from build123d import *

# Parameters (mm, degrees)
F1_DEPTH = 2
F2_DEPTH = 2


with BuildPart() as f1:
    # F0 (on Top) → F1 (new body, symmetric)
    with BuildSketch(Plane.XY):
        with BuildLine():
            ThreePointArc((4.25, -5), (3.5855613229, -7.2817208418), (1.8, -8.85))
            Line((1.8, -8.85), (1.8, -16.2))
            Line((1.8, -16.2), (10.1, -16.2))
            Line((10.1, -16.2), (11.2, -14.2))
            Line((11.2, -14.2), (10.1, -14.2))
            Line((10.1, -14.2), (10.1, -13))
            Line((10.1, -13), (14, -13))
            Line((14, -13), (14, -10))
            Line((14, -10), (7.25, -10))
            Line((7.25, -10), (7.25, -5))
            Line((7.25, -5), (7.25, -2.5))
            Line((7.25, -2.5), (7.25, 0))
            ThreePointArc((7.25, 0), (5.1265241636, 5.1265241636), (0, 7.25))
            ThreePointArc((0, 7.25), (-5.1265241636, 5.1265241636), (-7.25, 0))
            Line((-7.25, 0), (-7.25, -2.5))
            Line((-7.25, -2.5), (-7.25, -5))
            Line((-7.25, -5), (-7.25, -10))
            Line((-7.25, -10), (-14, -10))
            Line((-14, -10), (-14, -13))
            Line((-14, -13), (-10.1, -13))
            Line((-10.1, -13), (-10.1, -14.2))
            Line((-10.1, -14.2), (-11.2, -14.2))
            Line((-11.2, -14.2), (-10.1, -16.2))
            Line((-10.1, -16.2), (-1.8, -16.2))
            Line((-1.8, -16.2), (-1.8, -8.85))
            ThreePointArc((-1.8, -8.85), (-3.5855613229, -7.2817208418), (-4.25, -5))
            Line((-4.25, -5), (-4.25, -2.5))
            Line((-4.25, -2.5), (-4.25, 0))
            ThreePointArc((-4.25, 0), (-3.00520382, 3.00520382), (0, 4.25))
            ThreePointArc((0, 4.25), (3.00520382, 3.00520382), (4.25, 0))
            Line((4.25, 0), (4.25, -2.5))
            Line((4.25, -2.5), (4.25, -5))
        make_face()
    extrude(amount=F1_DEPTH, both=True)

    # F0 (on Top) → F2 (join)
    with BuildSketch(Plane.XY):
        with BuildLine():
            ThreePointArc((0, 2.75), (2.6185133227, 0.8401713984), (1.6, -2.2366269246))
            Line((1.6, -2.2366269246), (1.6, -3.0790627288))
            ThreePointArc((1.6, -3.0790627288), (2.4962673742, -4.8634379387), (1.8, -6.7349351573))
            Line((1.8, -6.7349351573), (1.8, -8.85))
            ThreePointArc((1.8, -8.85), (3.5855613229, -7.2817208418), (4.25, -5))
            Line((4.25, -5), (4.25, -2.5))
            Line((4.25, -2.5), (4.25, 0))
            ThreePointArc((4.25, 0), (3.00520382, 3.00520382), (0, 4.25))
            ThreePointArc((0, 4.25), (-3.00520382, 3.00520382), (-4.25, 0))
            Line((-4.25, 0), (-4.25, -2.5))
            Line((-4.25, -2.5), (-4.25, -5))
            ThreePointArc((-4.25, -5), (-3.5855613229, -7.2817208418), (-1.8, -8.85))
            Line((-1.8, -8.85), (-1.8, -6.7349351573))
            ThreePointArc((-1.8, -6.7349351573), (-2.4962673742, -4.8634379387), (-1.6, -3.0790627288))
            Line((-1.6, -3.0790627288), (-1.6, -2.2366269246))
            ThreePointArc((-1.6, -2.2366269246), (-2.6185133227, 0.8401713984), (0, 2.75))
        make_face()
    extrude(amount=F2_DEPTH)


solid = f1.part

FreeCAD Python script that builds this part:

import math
import FreeCAD as App
import Part
import Sketcher

V = App.Vector
Q = App.Units.Quantity

doc = App.newDocument("Part")
params = doc.addObject("Spreadsheet::Sheet", "Params")
for row, (alias, value) in enumerate([
    ("sketch1_height", "3 mm"),
    ("sketch1_height2", "10 mm"),
    ("sketch1_height3", "5 mm"),
    ("sketch1_radius", "4.25 mm"),
    ("sketch1_radius2", "7.25 mm"),
    ("pad1_length", "4 mm"),
    ("sketch2_radius", "2.5 mm"),
    ("sketch2_height", "5 mm"),
    ("sketch2_radius2", "2.75 mm"),
    ("sketch2_radius3", "4.25 mm"),
    ("pad2_length", "2 mm"),
], start=1):
    params.set(f"A{row}", alias)
    params.set(f"B{row}", "=" + value)
    params.setAlias(f"B{row}", alias)

body = doc.addObject("PartDesign::Body", "Body")

sketch1 = body.newObject("Sketcher::SketchObject", "Sketch")
sketch1.AttachmentSupport = (doc.getObject("XY_Plane"), [""])
sketch1.MapMode = "FlatFace"
sketch1.addGeometry(Part.ArcOfCircle(Part.Circle(V(0, -5, 0), V(0, 0, 1), 4.2), math.radians(-65), math.radians(0)), False)
sketch1.addGeometry(Part.LineSegment(V(1.8, -8.8, 0), V(1.8, -16.2, 0)), False)
sketch1.addGeometry(Part.LineSegment(V(1.8, -16.2, 0), V(10.1, -16.2, 0)), False)
sketch1.addGeometry(Part.LineSegment(V(10.1, -16.2, 0), V(11.2, -14.2, 0)), False)
sketch1.addGeometry(Part.LineSegment(V(11.2, -14.2, 0), V(10.1, -14.2, 0)), False)
sketch1.addGeometry(Part.LineSegment(V(10.1, -14.2, 0), V(10.1, -13, 0)), False)
sketch1.addGeometry(Part.LineSegment(V(10.1, -13, 0), V(14, -13, 0)), False)
sketch1.addGeometry(Part.LineSegment(V(14, -13, 0), V(14, -10, 0)), False)
sketch1.addGeometry(Part.LineSegment(V(14, -10, 0), V(7.2, -10, 0)), False)
sketch1.addGeometry(Part.LineSegment(V(7.2, -10, 0), V(7.2, 0, 0)), False)
sketch1.addGeometry(Part.ArcOfCircle(Part.Circle(V(0, 0, 0), V(0, 0, 1), 7.2), math.radians(0), math.radians(90)), False)
sketch1.addGeometry(Part.ArcOfCircle(Part.Circle(V(0, 0, 0), V(0, 0, 1), 7.2), math.radians(90), math.radians(180)), False)
sketch1.addGeometry(Part.LineSegment(V(-7.2, 0, 0), V(-7.2, -10, 0)), False)
sketch1.addGeometry(Part.LineSegment(V(-7.2, -10, 0), V(-14, -10, 0)), False)
sketch1.addGeometry(Part.LineSegment(V(-14, -10, 0), V(-14, -13, 0)), False)
sketch1.addGeometry(Part.LineSegment(V(-14, -13, 0), V(-10.1, -13, 0)), False)
sketch1.addGeometry(Part.LineSegment(V(-10.1, -13, 0), V(-10.1, -14.2, 0)), False)
sketch1.addGeometry(Part.LineSegment(V(-10.1, -14.2, 0), V(-11.2, -14.2, 0)), False)
sketch1.addGeometry(Part.LineSegment(V(-11.2, -14.2, 0), V(-10.1, -16.2, 0)), False)
sketch1.addGeometry(Part.LineSegment(V(-10.1, -16.2, 0), V(-1.8, -16.2, 0)), False)
sketch1.addGeometry(Part.LineSegment(V(-1.8, -16.2, 0), V(-1.8, -8.8, 0)), False)
sketch1.addGeometry(Part.ArcOfCircle(Part.Circle(V(0, -5, 0), V(0, 0, 1), 4.2), math.radians(180), math.radians(245)), False)
sketch1.addGeometry(Part.LineSegment(V(-4.2, -5, 0), V(-4.2, 0, 0)), False)
sketch1.addGeometry(Part.ArcOfCircle(Part.Circle(V(0, 0, 0), V(0, 0, 1), 4.2), math.radians(90), math.radians(180)), False)
sketch1.addGeometry(Part.ArcOfCircle(Part.Circle(V(0, 0, 0), V(0, 0, 1), 4.2), math.radians(0), math.radians(90)), False)
sketch1.addGeometry(Part.LineSegment(V(4.2, 0, 0), V(4.2, -5, 0)), False)
sketch1.addConstraint(Sketcher.Constraint("Coincident", 0, 1, 1, 1))
sketch1.addConstraint(Sketcher.Constraint("Coincident", 1, 2, 2, 1))
sketch1.addConstraint(Sketcher.Constraint("Coincident", 2, 2, 3, 1))
sketch1.addConstraint(Sketcher.Constraint("Coincident", 3, 2, 4, 1))
sketch1.addConstraint(Sketcher.Constraint("Coincident", 4, 2, 5, 1))
sketch1.addConstraint(Sketcher.Constraint("Coincident", 5, 2, 6, 1))
sketch1.addConstraint(Sketcher.Constraint("Coincident", 6, 2, 7, 1))
sketch1.addConstraint(Sketcher.Constraint("Coincident", 7, 2, 8, 1))
sketch1.addConstraint(Sketcher.Constraint("Coincident", 8, 2, 9, 1))
sketch1.addConstraint(Sketcher.Constraint("Tangent", 9, 2, 10, 1))
sketch1.addConstraint(Sketcher.Constraint("Tangent", 10, 2, 11, 1))
sketch1.addConstraint(Sketcher.Constraint("Tangent", 11, 2, 12, 1))
sketch1.addConstraint(Sketcher.Constraint("Coincident", 12, 2, 13, 1))
sketch1.addConstraint(Sketcher.Constraint("Coincident", 13, 2, 14, 1))
sketch1.addConstraint(Sketcher.Constraint("Coincident", 14, 2, 15, 1))
sketch1.addConstraint(Sketcher.Constraint("Coincident", 15, 2, 16, 1))
sketch1.addConstraint(Sketcher.Constraint("Coincident", 16, 2, 17, 1))
sketch1.addConstraint(Sketcher.Constraint("Coincident", 17, 2, 18, 1))
sketch1.addConstraint(Sketcher.Constraint("Coincident", 18, 2, 19, 1))
sketch1.addConstraint(Sketcher.Constraint("Coincident", 19, 2, 20, 1))
sketch1.addConstraint(Sketcher.Constraint("Coincident", 20, 2, 21, 2))
sketch1.addConstraint(Sketcher.Constraint("Tangent", 21, 1, 22, 1))
sketch1.addConstraint(Sketcher.Constraint("Tangent", 22, 2, 23, 2))
sketch1.addConstraint(Sketcher.Constraint("Tangent", 23, 1, 24, 2))
sketch1.addConstraint(Sketcher.Constraint("Tangent", 24, 1, 25, 1))
sketch1.addConstraint(Sketcher.Constraint("Tangent", 25, 2, 0, 2))
sketch1.addConstraint(Sketcher.Constraint("Vertical", 1))
sketch1.addConstraint(Sketcher.Constraint("Horizontal", 2))
sketch1.addConstraint(Sketcher.Constraint("Horizontal", 4))
sketch1.addConstraint(Sketcher.Constraint("Vertical", 5))
sketch1.addConstraint(Sketcher.Constraint("Horizontal", 6))
sketch1.addConstraint(Sketcher.Constraint("Vertical", 7))
sketch1.addConstraint(Sketcher.Constraint("Horizontal", 8))
sketch1.addConstraint(Sketcher.Constraint("Vertical", 9))
sketch1.addConstraint(Sketcher.Constraint("Vertical", 12))
sketch1.addConstraint(Sketcher.Constraint("Horizontal", 13))
sketch1.addConstraint(Sketcher.Constraint("Vertical", 14))
sketch1.addConstraint(Sketcher.Constraint("Horizontal", 15))
sketch1.addConstraint(Sketcher.Constraint("Vertical", 16))
sketch1.addConstraint(Sketcher.Constraint("Horizontal", 17))
sketch1.addConstraint(Sketcher.Constraint("Horizontal", 19))
sketch1.addConstraint(Sketcher.Constraint("Vertical", 20))
sketch1.addConstraint(Sketcher.Constraint("Vertical", 22))
sketch1.addConstraint(Sketcher.Constraint("Vertical", 25))
sketch1.addConstraint(Sketcher.Constraint("Coincident", 10, 3, -1, 1))
sketch1.addConstraint(Sketcher.Constraint("Coincident", 23, 3, -1, 1))
sketch1.addConstraint(Sketcher.Constraint("Coincident", 21, 3, 0, 3))
sketch1.addConstraint(Sketcher.Constraint("Equal", 10, 11))
sketch1.addConstraint(Sketcher.Constraint("Equal", 0, 21))
sketch1.addConstraint(Sketcher.Constraint("Equal", 21, 23))
sketch1.addConstraint(Sketcher.Constraint("Symmetric", 7, 2, 13, 2, -2))
sketch1.addConstraint(Sketcher.Constraint("Symmetric", 5, 2, 15, 2, -2))
sketch1.addConstraint(Sketcher.Constraint("Symmetric", 3, 2, 17, 2, -2))
sketch1.addConstraint(Sketcher.Constraint("Symmetric", 2, 2, 18, 2, -2))
sketch1.addConstraint(Sketcher.Constraint("PointOnObject", 10, 2, -2))
sketch1.addConstraint(Sketcher.Constraint("PointOnObject", 23, 1, -2))
sketch1.addConstraint(Sketcher.Constraint("Horizontal", 0, 1, 20, 2))
sketch1.addConstraint(Sketcher.Constraint("Vertical", 2, 2, 4, 2))
sketch1.addConstraint(Sketcher.Constraint("DistanceY", 7, 1, 7, 2, Q("3 mm")))
sketch1.addConstraint(Sketcher.Constraint("DistanceY", 9, 1, 9, 2, Q("10 mm")))
sketch1.addConstraint(Sketcher.Constraint("DistanceY", 22, 1, 22, 2, Q("5 mm")))
sketch1.addConstraint(Sketcher.Constraint("Radius", 0, Q("4.25 mm")))
sketch1.addConstraint(Sketcher.Constraint("Radius", 10, Q("7.25 mm")))
sketch1.addConstraint(Sketcher.Constraint("DistanceX", 2, 1, 2, 2, Q("8.3 mm")))
sketch1.addConstraint(Sketcher.Constraint("DistanceX", 4, 2, 4, 1, Q("1.1 mm")))
sketch1.addConstraint(Sketcher.Constraint("DistanceX", 6, 1, 6, 2, Q("3.9 mm")))
sketch1.addConstraint(Sketcher.Constraint("DistanceY", 5, 1, 5, 2, Q("1.2 mm")))
sketch1.addConstraint(Sketcher.Constraint("DistanceX", -1, 1, 6, 2, Q("14 mm")))
sketch1.addConstraint(Sketcher.Constraint("DistanceY", 2, 2, 3, 2, Q("2 mm")))
sketch1.setExpression("Constraints[58]", "Params.sketch1_height")
sketch1.setExpression("Constraints[59]", "Params.sketch1_height2")
sketch1.setExpression("Constraints[60]", "Params.sketch1_height3")
sketch1.setExpression("Constraints[61]", "Params.sketch1_radius")
sketch1.setExpression("Constraints[62]", "Params.sketch1_radius2")
pad1 = body.newObject("PartDesign::Pad", "Pad")
pad1.Profile = sketch1
pad1.setExpression("Length", "Params.pad1_length")
pad1.Midplane = True

sketch2 = body.newObject("Sketcher::SketchObject", "Sketch001")
sketch2.AttachmentSupport = (doc.getObject("XY_Plane"), [""])
sketch2.MapMode = "FlatFace"
sketch2.addGeometry(Part.ArcOfCircle(Part.Circle(V(0, 0, 0), V(0, 0, 1), 2.8), math.radians(-54), math.radians(90)), False)
sketch2.addGeometry(Part.LineSegment(V(1.6, -2.2, 0), V(1.6, -3.1, 0)), False)
sketch2.addGeometry(Part.ArcOfCircle(Part.Circle(V(0, -5, 0), V(0, 0, 1), 2.5), math.radians(-44), math.radians(50)), False)
sketch2.addGeometry(Part.LineSegment(V(1.8, -6.7, 0), V(1.8, -8.8, 0)), False)
sketch2.addGeometry(Part.ArcOfCircle(Part.Circle(V(0, -5, 0), V(0, 0, 1), 4.2), math.radians(-65), math.radians(0)), False)
sketch2.addGeometry(Part.LineSegment(V(4.2, -5, 0), V(4.2, 0, 0)), False)
sketch2.addGeometry(Part.ArcOfCircle(Part.Circle(V(0, 0, 0), V(0, 0, 1), 4.2), math.radians(0), math.radians(90)), False)
sketch2.addGeometry(Part.ArcOfCircle(Part.Circle(V(0, 0, 0), V(0, 0, 1), 4.2), math.radians(90), math.radians(180)), False)
sketch2.addGeometry(Part.LineSegment(V(-4.2, 0, 0), V(-4.2, -5, 0)), False)
sketch2.addGeometry(Part.ArcOfCircle(Part.Circle(V(0, -5, 0), V(0, 0, 1), 4.2), math.radians(180), math.radians(245)), False)
sketch2.addGeometry(Part.LineSegment(V(-1.8, -8.8, 0), V(-1.8, -6.7, 0)), False)
sketch2.addGeometry(Part.ArcOfCircle(Part.Circle(V(0, -5, 0), V(0, 0, 1), 2.5), math.radians(130), math.radians(224)), False)
sketch2.addGeometry(Part.LineSegment(V(-1.6, -3.1, 0), V(-1.6, -2.2, 0)), False)
sketch2.addGeometry(Part.ArcOfCircle(Part.Circle(V(0, 0, 0), V(0, 0, 1), 2.8), math.radians(90), math.radians(234)), False)
sketch2.addConstraint(Sketcher.Constraint("Coincident", 0, 1, 1, 1))
sketch2.addConstraint(Sketcher.Constraint("Coincident", 1, 2, 2, 2))
sketch2.addConstraint(Sketcher.Constraint("Coincident", 2, 1, 3, 1))
sketch2.addConstraint(Sketcher.Constraint("Coincident", 3, 2, 4, 1))
sketch2.addConstraint(Sketcher.Constraint("Tangent", 4, 2, 5, 1))
sketch2.addConstraint(Sketcher.Constraint("Tangent", 5, 2, 6, 1))
sketch2.addConstraint(Sketcher.Constraint("Tangent", 6, 2, 7, 1))
sketch2.addConstraint(Sketcher.Constraint("Tangent", 7, 2, 8, 1))
sketch2.addConstraint(Sketcher.Constraint("Tangent", 8, 2, 9, 1))
sketch2.addConstraint(Sketcher.Constraint("Coincident", 9, 2, 10, 1))
sketch2.addConstraint(Sketcher.Constraint("Coincident", 10, 2, 11, 2))
sketch2.addConstraint(Sketcher.Constraint("Coincident", 11, 1, 12, 1))
sketch2.addConstraint(Sketcher.Constraint("Coincident", 12, 2, 13, 2))
sketch2.addConstraint(Sketcher.Constraint("Tangent", 13, 1, 0, 2))
sketch2.addConstraint(Sketcher.Constraint("Vertical", 1))
sketch2.addConstraint(Sketcher.Constraint("Vertical", 3))
sketch2.addConstraint(Sketcher.Constraint("Vertical", 5))
sketch2.addConstraint(Sketcher.Constraint("Vertical", 8))
sketch2.addConstraint(Sketcher.Constraint("Vertical", 10))
sketch2.addConstraint(Sketcher.Constraint("Vertical", 12))
sketch2.addConstraint(Sketcher.Constraint("Coincident", 0, 3, -1, 1))
sketch2.addConstraint(Sketcher.Constraint("Coincident", 6, 3, -1, 1))
sketch2.addConstraint(Sketcher.Constraint("Coincident", 4, 3, 2, 3))
sketch2.addConstraint(Sketcher.Constraint("Coincident", 9, 3, 2, 3))
sketch2.addConstraint(Sketcher.Constraint("Coincident", 11, 3, 2, 3))
sketch2.addConstraint(Sketcher.Constraint("Equal", 4, 6))
sketch2.addConstraint(Sketcher.Constraint("Equal", 6, 7))
sketch2.addConstraint(Sketcher.Constraint("Equal", 2, 11))
sketch2.addConstraint(Sketcher.Constraint("Equal", 0, 13))
sketch2.addConstraint(Sketcher.Constraint("PointOnObject", 6, 2, -2))
sketch2.addConstraint(Sketcher.Constraint("PointOnObject", 13, 1, -2))
sketch2.addConstraint(Sketcher.Constraint("Horizontal", 3, 2, 9, 2))
sketch2.addConstraint(Sketcher.Constraint("Horizontal", 1, 2, 11, 1))
sketch2.addConstraint(Sketcher.Constraint("Radius", 2, Q("2.5 mm")))
sketch2.addConstraint(Sketcher.Constraint("DistanceY", 5, 1, 5, 2, Q("5 mm")))
sketch2.addConstraint(Sketcher.Constraint("Radius", 0, Q("2.75 mm")))
sketch2.addConstraint(Sketcher.Constraint("Radius", 4, Q("4.25 mm")))
sketch2.addConstraint(Sketcher.Constraint("DistanceX", -1, 1, 0, 1, Q("1.6 mm")))
sketch2.addConstraint(Sketcher.Constraint("DistanceX", -1, 1, 2, 1, Q("1.8 mm")))
sketch2.setExpression("Constraints[33]", "Params.sketch2_radius")
sketch2.setExpression("Constraints[34]", "Params.sketch2_height")
sketch2.setExpression("Constraints[35]", "Params.sketch2_radius2")
sketch2.setExpression("Constraints[36]", "Params.sketch2_radius3")
pad2 = body.newObject("PartDesign::Pad", "Pad001")
pad2.Profile = sketch2
pad2.setExpression("Length", "Params.pad2_length")

doc.recompute()
